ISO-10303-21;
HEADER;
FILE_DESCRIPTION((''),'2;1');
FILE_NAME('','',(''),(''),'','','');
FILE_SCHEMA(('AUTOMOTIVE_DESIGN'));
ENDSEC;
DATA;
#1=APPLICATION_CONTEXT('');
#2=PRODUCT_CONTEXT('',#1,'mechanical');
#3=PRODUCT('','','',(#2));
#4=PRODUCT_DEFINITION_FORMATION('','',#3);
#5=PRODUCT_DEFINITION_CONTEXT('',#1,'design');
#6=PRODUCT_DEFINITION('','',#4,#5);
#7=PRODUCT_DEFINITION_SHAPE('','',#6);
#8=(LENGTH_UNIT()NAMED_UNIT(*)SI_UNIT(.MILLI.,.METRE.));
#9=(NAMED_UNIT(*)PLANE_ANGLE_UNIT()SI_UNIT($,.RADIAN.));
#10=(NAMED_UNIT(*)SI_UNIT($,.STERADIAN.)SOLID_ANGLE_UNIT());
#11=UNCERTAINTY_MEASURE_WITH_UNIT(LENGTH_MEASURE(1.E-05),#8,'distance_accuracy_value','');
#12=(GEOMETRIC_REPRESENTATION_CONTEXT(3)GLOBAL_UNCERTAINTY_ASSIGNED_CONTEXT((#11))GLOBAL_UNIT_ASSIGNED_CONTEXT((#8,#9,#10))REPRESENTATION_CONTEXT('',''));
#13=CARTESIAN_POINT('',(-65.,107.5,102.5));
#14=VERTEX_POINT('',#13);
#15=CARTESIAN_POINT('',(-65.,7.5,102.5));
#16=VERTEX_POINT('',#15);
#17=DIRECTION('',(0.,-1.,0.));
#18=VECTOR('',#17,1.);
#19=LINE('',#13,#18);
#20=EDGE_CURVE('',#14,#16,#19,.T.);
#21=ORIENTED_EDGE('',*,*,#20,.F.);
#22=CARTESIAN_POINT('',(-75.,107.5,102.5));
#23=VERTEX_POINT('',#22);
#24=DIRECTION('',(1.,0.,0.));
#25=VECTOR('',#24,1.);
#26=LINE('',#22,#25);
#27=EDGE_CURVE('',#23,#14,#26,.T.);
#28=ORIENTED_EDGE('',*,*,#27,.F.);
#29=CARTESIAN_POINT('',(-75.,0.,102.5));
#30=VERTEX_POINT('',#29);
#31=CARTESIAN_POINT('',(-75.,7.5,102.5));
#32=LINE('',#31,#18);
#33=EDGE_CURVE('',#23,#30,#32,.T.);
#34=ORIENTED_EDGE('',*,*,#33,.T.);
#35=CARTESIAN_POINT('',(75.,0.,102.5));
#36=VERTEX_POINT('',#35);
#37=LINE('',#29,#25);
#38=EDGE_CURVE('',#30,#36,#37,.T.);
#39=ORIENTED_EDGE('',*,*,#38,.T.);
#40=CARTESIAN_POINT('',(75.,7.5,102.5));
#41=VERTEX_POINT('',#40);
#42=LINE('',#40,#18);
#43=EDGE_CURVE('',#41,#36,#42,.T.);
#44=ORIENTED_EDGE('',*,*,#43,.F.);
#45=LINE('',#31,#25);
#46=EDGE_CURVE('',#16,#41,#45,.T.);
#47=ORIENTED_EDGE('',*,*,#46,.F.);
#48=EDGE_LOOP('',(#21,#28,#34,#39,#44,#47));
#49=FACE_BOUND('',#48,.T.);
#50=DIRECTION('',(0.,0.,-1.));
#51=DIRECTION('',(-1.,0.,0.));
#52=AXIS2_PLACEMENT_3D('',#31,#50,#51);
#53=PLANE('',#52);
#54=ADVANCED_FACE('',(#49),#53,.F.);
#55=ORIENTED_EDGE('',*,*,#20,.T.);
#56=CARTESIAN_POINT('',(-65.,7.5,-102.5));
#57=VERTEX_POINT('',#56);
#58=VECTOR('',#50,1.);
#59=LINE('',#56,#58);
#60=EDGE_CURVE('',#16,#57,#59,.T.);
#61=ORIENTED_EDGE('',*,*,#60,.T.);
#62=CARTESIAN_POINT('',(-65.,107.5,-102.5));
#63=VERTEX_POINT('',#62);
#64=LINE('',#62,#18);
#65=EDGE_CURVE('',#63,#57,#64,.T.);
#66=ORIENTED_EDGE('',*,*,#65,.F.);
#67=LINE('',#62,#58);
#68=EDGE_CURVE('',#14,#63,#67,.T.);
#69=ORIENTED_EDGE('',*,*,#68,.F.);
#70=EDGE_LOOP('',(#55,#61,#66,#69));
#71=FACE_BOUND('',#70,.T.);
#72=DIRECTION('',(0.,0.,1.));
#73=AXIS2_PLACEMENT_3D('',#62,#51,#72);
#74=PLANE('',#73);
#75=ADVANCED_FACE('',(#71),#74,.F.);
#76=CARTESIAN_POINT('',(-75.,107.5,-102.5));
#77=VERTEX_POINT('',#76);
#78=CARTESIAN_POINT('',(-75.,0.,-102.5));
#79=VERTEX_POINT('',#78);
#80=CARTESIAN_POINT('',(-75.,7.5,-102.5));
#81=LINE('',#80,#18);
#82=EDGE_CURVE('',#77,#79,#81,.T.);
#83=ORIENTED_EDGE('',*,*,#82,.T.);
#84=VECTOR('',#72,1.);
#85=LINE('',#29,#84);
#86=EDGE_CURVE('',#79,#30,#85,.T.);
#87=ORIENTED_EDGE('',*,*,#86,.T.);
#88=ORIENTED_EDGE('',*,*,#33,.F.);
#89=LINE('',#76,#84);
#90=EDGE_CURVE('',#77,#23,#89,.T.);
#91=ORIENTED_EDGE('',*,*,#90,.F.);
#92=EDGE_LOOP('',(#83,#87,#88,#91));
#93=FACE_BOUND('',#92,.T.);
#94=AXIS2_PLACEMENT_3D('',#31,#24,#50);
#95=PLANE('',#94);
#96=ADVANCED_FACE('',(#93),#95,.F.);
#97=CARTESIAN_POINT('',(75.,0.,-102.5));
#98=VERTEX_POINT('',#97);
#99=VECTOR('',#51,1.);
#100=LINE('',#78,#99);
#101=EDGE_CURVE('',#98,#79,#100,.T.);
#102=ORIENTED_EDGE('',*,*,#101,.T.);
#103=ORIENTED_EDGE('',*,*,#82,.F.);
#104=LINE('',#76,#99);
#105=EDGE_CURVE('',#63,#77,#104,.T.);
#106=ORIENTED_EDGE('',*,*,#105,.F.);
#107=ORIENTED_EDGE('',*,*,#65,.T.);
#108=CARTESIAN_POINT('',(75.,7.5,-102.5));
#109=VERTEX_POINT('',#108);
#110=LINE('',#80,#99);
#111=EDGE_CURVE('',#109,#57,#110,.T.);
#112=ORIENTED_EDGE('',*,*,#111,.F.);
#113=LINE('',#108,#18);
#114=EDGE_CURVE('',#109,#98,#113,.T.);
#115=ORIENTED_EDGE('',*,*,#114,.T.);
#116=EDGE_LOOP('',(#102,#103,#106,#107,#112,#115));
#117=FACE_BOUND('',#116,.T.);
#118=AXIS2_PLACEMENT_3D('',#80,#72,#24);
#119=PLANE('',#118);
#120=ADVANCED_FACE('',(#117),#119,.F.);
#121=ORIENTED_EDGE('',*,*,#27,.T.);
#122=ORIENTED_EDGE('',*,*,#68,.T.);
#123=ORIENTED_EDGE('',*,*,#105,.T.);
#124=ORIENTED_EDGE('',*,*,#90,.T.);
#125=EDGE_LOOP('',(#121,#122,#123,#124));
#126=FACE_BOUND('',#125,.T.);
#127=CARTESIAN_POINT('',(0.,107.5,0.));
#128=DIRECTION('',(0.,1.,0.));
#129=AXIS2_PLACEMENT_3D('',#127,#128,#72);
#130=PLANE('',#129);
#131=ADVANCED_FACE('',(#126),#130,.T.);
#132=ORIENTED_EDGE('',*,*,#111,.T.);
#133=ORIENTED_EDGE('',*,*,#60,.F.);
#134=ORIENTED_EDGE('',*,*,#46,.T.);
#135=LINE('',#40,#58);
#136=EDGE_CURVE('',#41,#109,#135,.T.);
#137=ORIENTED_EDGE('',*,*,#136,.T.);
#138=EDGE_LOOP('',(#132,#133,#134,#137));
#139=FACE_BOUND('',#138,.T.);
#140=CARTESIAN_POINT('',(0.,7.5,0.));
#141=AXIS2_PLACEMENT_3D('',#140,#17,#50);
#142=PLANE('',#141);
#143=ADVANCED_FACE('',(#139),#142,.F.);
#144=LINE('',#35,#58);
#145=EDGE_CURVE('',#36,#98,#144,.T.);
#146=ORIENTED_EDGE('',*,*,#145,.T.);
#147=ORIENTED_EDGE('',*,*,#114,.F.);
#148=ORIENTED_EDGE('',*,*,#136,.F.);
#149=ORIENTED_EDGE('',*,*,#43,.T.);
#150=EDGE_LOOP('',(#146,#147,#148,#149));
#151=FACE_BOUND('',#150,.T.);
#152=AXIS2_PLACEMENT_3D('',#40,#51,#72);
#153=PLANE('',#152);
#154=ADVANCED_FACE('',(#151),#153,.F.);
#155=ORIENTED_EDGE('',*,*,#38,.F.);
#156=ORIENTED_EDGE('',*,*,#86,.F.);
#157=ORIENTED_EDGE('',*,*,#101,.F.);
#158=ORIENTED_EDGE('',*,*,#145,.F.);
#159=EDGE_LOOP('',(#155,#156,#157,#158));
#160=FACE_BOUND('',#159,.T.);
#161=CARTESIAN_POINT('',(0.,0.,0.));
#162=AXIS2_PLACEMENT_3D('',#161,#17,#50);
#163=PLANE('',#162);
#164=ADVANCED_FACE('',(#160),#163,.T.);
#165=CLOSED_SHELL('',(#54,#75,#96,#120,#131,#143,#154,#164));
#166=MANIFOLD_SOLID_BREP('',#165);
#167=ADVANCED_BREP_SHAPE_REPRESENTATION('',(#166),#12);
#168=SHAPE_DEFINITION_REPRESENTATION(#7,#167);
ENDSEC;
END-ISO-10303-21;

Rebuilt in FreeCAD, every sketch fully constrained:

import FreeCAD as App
import Part
import Sketcher
from FreeCAD import Vector


def add_polygon(sketch, points):
    """Adds a closed chain of lines whose ends are joined by coincident constraints."""
    first, n = sketch.GeometryCount, len(points)
    for a, b in zip(points, points[1:] + points[:1]):
        sketch.addGeometry(Part.LineSegment(App.Vector(*a, 0), App.Vector(*b, 0)), False)
    for i in range(n):
        sketch.addConstraint(Sketcher.Constraint("Coincident", first + i, 2, first + (i + 1) % n, 1))

doc = App.newDocument("Part")
params = doc.addObject("Spreadsheet::Sheet", "Params")
for row, (alias, value) in enumerate([
    ("sketch1_width", "150 mm"),
    ("sketch1_height", "205 mm"),
    ("pad1_length", "7.5 mm"),
    ("sketch2_width", "10 mm"),
    ("sketch2_height", "205 mm"),
    ("pad2_length", "100 mm"),
], start=1):
    params.set(f"A{row}", alias)
    params.set(f"B{row}", "=" + value)
    params.setAlias(f"B{row}", alias)

body = doc.addObject("PartDesign::Body", "Body")

sketch1 = body.newObject("Sketcher::SketchObject", "Sketch")
sketch1.AttachmentSupport = (doc.getObject("XZ_Plane"), [""])
sketch1.MapMode = "FlatFace"
add_polygon(sketch1, [(-75, -102), (-75, 102), (75, 102), (75, -102)])
sketch1.addConstraint([
    Sketcher.Constraint("Vertical", 0),
    Sketcher.Constraint("Horizontal", 1),
    Sketcher.Constraint("Vertical", 2),
    Sketcher.Constraint("Horizontal", 3),
    Sketcher.Constraint("Symmetric", 0, 2, 2, 2, -1, 1),
    Sketcher.Constraint("DistanceX", 1, 1, 1, 2, 150.0),
    Sketcher.Constraint("DistanceY", 0, 1, 0, 2, 205.0),
])
sketch1.setExpression("Constraints[9]", "Params.sketch1_width")
sketch1.setExpression("Constraints[10]", "Params.sketch1_height")
pad1 = body.newObject("PartDesign::Pad", "Pad")
pad1.Profile = sketch1
pad1.setExpression("Length", "Params.pad1_length")
pad1.Reversed = True

sketch2 = body.newObject("Sketcher::SketchObject", "Sketch001")
sketch2.AttachmentSupport = (doc.getObject("XZ_Plane"), [""])
sketch2.MapMode = "FlatFace"
sketch2.AttachmentOffset = App.Placement(Vector(0, 0, -7.5), App.Rotation())
add_polygon(sketch2, [(-75, -102), (-75, 102), (-65, 102), (-65, -102)])
sketch2.addConstraint([
    Sketcher.Constraint("Vertical", 0),
    Sketcher.Constraint("Horizontal", 1),
    Sketcher.Constraint("Vertical", 2),
    Sketcher.Constraint("Horizontal", 3),
    Sketcher.Constraint("DistanceX", 1, 1, 1, 2, 10.0),
    Sketcher.Constraint("DistanceY", 0, 1, 0, 2, 205.0),
    Sketcher.Constraint("DistanceX", 0, 2, -1, 1, 75.0),
    Sketcher.Constraint("DistanceY", -1, 1, 0, 2, 102.5),
])
sketch2.setExpression("Constraints[8]", "Params.sketch2_width")
sketch2.setExpression("Constraints[9]", "Params.sketch2_height")
pad2 = body.newObject("PartDesign::Pad", "Pad001")
pad2.Profile = sketch2
pad2.setExpression("Length", "Params.pad2_length")
pad2.Reversed = True

doc.recompute()
